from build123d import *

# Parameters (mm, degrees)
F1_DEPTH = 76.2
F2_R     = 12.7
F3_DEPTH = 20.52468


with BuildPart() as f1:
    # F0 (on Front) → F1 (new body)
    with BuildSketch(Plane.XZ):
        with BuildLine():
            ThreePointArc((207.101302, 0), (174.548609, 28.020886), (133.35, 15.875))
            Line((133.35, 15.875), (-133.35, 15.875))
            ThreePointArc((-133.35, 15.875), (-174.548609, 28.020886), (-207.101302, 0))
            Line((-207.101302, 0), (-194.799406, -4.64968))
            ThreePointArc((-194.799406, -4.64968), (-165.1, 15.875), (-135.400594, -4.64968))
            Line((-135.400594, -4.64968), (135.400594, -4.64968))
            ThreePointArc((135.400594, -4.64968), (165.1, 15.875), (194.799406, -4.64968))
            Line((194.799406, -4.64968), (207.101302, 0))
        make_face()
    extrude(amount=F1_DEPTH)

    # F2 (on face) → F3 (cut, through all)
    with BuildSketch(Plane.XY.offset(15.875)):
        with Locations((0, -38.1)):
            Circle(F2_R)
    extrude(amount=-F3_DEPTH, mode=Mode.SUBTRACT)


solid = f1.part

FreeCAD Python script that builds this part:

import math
import FreeCAD as App
import Part
import Sketcher
Q = App.Units.Quantity

doc = App.newDocument("Part")
params = doc.addObject("Spreadsheet::Sheet", "Params")
for row, (alias, value) in enumerate([
    ("sketch1_radius", "1.25 in"),
    ("sketch1_width", "10.5 in"),
    ("sketch1_height", "1.25 in"),
    ("pad1_length", "3 in"),
    ("sketch2_diameter", "1 in"),
], start=1):
    params.set(f"A{row}", alias)
    params.set(f"B{row}", "=" + value)
    params.setAlias(f"B{row}", alias)

body = doc.addObject("PartDesign::Body", "Body")

sketch1 = doc.addObject("Sketcher::SketchObject", "Sketch")
body.addObject(sketch1)
sketch1.AttachmentSupport = (doc.XZ_Plane, [""])
sketch1.MapMode = "FlatFace"
sketch1.addGeometry([
    Part.ArcOfCircle(Part.Circle(App.Vector(165.1, -15.874999, 0), App.Vector(0, 0, 1), 44.90128), math.radians(20.70481), math.radians(135.000001)),
    Part.LineSegment(App.Vector(133.35, 15.875, 0), App.Vector(-133.35, 15.875, 0)),
    Part.ArcOfCircle(Part.Circle(App.Vector(-165.1, -15.874999, 0), App.Vector(0, 0, 1), 44.90128), math.radians(44.999999), math.radians(159.29519)),
    Part.LineSegment(App.Vector(-207.101302, 0, 0), App.Vector(-194.799406, -4.64968, 0)),
    Part.ArcOfCircle(Part.Circle(App.Vector(-165.1, -15.875001, 0), App.Vector(0, 0, 1), 31.750001), math.radians(20.704812), math.radians(159.295188)),
    Part.LineSegment(App.Vector(-135.400594, -4.64968, 0), App.Vector(135.400594, -4.64968, 0)),
    Part.ArcOfCircle(Part.Circle(App.Vector(165.1, -15.875001, 0), App.Vector(0, 0, 1), 31.750001), math.radians(20.704812), math.radians(159.295188)),
    Part.LineSegment(App.Vector(194.799406, -4.64968, 0), App.Vector(207.101302, 0, 0)),
], False)
sketch1.addConstraint([
    Sketcher.Constraint("Coincident", 0, 2, 1, 1),
    Sketcher.Constraint("Coincident", 1, 2, 2, 1),
    Sketcher.Constraint("Coincident", 2, 2, 3, 1),
    Sketcher.Constraint("Coincident", 3, 2, 4, 2),
    Sketcher.Constraint("Coincident", 4, 1, 5, 1),
    Sketcher.Constraint("Coincident", 5, 2, 6, 2),
    Sketcher.Constraint("Coincident", 6, 1, 7, 1),
    Sketcher.Constraint("Coincident", 7, 2, 0, 1),
    Sketcher.Constraint("Horizontal", 1),
    Sketcher.Constraint("Horizontal", 5),
    Sketcher.Constraint("Coincident", 4, 3, 2, 3),
    Sketcher.Constraint("Coincident", 6, 3, 0, 3),
    Sketcher.Constraint("Equal", 0, 2),
    Sketcher.Constraint("Equal", 4, 6),
    Sketcher.Constraint("Symmetric", 2, 2, 7, 2, -1, 1),
    Sketcher.Constraint("Symmetric", 0, 3, 2, 3, -2),
    Sketcher.Constraint("Horizontal", 3, 2, 4, 1),
    Sketcher.Constraint("Horizontal", 5, 2, 6, 1),
    Sketcher.Constraint("Radius", 4, Q("1.25 in")),
    Sketcher.Constraint("DistanceX", 1, 2, 1, 1, Q("10.5 in")),
    Sketcher.Constraint("DistanceX", 2, 3, 0, 3, Q("13 in")),
    Sketcher.Constraint("DistanceY", 0, 3, 0, 2, Q("1.25 in")),
    Sketcher.Constraint("DistanceY", 0, 3, -1, 1, Q("0.625 in")),
    Sketcher.Constraint("DistanceX", 5, 1, 5, 2, 270.801188),
])
sketch1.setExpression("Constraints[18]", "Params.sketch1_radius")
sketch1.setExpression("Constraints[19]", "Params.sketch1_width")
sketch1.setExpression("Constraints[21]", "Params.sketch1_height")
pad1 = doc.addObject("PartDesign::Pad", "Pad")
body.addObject(pad1)
pad1.Profile = sketch1
pad1.setExpression("Length", "Params.pad1_length")

sketch2 = doc.addObject("Sketcher::SketchObject", "Sketch001")
body.addObject(sketch2)
sketch2.AttachmentSupport = (doc.XY_Plane, [""])
sketch2.MapMode = "FlatFace"
sketch2.AttachmentOffset = App.Placement(App.Vector(0, 0, 0.625 * 25.4), App.Rotation())
sketch2.addGeometry(Part.Circle(App.Vector(0, -38.1, 0), App.Vector(0, 0, 1), 12.7), False)
sketch2.addConstraint([
    Sketcher.Constraint("PointOnObject", 0, 3, -2),
    Sketcher.Constraint("Diameter", 0, Q("1 in")),
    Sketcher.Constraint("DistanceY", 0, 3, -1, 1, Q("1.5 in")),
])
sketch2.setExpression("Constraints[1]", "Params.sketch2_diameter")
pocket1 = doc.addObject("PartDesign::Pocket", "Pocket")
body.addObject(pocket1)
pocket1.Profile = sketch2
pocket1.Type = "ThroughAll"

doc.recompute()
